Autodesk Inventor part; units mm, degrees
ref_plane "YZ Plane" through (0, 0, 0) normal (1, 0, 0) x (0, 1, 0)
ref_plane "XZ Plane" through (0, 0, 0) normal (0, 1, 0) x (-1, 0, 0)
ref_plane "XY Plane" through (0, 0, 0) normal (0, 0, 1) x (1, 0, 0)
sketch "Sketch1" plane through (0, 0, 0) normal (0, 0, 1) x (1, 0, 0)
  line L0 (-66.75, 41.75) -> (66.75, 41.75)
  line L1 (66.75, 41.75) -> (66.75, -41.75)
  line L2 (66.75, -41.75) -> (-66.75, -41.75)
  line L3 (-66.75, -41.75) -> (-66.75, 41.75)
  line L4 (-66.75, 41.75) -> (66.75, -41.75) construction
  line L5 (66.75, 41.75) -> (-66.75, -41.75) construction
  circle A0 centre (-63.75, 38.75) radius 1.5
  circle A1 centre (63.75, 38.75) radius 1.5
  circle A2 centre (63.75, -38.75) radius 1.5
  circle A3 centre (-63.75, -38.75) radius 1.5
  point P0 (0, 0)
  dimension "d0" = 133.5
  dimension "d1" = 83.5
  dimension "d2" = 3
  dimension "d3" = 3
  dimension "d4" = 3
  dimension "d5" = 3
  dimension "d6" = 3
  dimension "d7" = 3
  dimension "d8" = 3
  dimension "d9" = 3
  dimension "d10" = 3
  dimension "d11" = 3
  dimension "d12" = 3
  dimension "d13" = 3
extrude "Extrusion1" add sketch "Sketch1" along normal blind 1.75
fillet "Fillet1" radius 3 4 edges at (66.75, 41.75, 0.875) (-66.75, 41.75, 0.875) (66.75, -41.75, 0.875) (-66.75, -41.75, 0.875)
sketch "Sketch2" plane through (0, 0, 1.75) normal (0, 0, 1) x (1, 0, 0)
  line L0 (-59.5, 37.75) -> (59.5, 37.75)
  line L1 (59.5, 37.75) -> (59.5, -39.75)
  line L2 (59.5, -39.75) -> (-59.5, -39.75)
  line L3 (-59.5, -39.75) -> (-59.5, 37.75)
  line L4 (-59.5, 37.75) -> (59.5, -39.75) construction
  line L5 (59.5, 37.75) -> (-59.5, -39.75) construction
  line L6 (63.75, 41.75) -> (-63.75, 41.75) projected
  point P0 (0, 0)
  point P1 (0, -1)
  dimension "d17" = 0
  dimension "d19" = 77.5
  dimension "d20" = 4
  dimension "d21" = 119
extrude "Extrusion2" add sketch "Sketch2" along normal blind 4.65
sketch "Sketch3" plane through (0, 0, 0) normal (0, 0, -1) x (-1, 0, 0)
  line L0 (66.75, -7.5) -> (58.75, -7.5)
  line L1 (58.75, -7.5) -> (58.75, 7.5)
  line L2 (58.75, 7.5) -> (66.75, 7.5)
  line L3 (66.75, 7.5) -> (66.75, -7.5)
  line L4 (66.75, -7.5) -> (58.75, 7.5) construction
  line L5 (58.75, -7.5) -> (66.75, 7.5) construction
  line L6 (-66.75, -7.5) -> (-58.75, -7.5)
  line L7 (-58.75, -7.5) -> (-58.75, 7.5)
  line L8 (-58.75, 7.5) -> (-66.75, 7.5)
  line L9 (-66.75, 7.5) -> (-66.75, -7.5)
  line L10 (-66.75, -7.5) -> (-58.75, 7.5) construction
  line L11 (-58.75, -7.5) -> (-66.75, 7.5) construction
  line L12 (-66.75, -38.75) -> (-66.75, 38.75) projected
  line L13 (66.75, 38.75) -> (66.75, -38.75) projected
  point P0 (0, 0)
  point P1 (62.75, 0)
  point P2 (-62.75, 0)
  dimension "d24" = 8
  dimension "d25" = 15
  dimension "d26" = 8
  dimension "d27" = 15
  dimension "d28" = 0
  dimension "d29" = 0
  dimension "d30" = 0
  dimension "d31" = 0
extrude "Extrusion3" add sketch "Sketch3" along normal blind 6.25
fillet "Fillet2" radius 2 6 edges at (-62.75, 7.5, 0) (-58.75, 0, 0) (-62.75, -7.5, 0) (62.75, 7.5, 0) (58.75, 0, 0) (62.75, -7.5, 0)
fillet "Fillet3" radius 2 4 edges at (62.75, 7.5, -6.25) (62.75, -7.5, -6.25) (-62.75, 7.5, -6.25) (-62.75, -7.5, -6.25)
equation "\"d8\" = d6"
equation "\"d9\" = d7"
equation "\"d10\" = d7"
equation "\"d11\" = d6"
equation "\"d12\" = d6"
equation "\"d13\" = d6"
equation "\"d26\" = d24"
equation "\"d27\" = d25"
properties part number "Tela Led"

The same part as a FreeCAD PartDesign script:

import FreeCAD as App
import Part
import Sketcher
from FreeCAD import Vector
Q = App.Units.Quantity


def edges_at(feature, points):
    """Names of the edges that pass closest to the given points."""
    edges = feature.Shape.Edges
    near = lambda p: min(range(len(edges)), key=lambda i: edges[i].distToShape(Part.Vertex(*p))[0])
    return sorted({f"Edge{near(p) + 1}" for p in points})

doc = App.newDocument("Part")
body = doc.addObject("PartDesign::Body", "Body")

sketch1 = doc.addObject("Sketcher::SketchObject", "Sketch")
body.addObject(sketch1)
sketch1.AttachmentSupport = (doc.XY_Plane, [""])
sketch1.MapMode = "FlatFace"
sketch1.addGeometry(Part.LineSegment(Vector(66.75, 41.75, 0), Vector(-66.75, 41.75, 0)), False)
sketch1.addGeometry(Part.LineSegment(Vector(-66.75, 41.75, 0), Vector(-66.75, -41.75, 0)), False)
sketch1.addGeometry(Part.LineSegment(Vector(-66.75, -41.75, 0), Vector(66.75, -41.75, 0)), False)
sketch1.addGeometry(Part.LineSegment(Vector(66.75, -41.75, 0), Vector(66.75, 41.75, 0)), False)
sketch1.addGeometry(Part.Circle(Vector(-63.75, -38.75, 0), Vector(0, 0, 1), 1.5), False)
sketch1.addGeometry(Part.Circle(Vector(63.75, -38.75, 0), Vector(0, 0, 1), 1.5), False)
sketch1.addGeometry(Part.Circle(Vector(-63.75, 38.75, 0), Vector(0, 0, 1), 1.5), False)
sketch1.addGeometry(Part.Circle(Vector(63.75, 38.75, 0), Vector(0, 0, 1), 1.5), False)
sketch1.addConstraint(Sketcher.Constraint("Coincident", 0, 2, 1, 1))
sketch1.addConstraint(Sketcher.Constraint("Coincident", 1, 2, 2, 1))
sketch1.addConstraint(Sketcher.Constraint("Coincident", 2, 2, 3, 1))
sketch1.addConstraint(Sketcher.Constraint("Coincident", 3, 2, 0, 1))
sketch1.addConstraint(Sketcher.Constraint("Horizontal", 0))
sketch1.addConstraint(Sketcher.Constraint("Vertical", 1))
sketch1.addConstraint(Sketcher.Constraint("Horizontal", 2))
sketch1.addConstraint(Sketcher.Constraint("Vertical", 3))
sketch1.addConstraint(Sketcher.Constraint("Equal", 4, 5))
sketch1.addConstraint(Sketcher.Constraint("Equal", 5, 6))
sketch1.addConstraint(Sketcher.Constraint("Equal", 6, 7))
sketch1.addConstraint(Sketcher.Constraint("Symmetric", 5, 3, 6, 3, -1, 1))
sketch1.addConstraint(Sketcher.Constraint("Symmetric", 4, 3, 7, 3, -1, 1))
sketch1.addConstraint(Sketcher.Constraint("Symmetric", 0, 2, 2, 2, -1, 1))
sketch1.addConstraint(Sketcher.Constraint("Symmetric", 4, 3, 5, 3, -2))
sketch1.addConstraint(Sketcher.Constraint("Diameter", 4, Q("3 mm")))
sketch1.addConstraint(Sketcher.Constraint("DistanceX", 0, 2, 0, 1, Q("133.5 mm")))
sketch1.addConstraint(Sketcher.Constraint("DistanceY", 1, 2, 1, 1, Q("83.5 mm")))
sketch1.addConstraint(Sketcher.Constraint("DistanceX", 0, 2, 6, 3, Q("3 mm")))
sketch1.addConstraint(Sketcher.Constraint("DistanceY", 6, 3, 0, 2, Q("3 mm")))
pad1 = doc.addObject("PartDesign::Pad", "Pad")
body.addObject(pad1)
pad1.Profile = sketch1
pad1.Length = 1.75
doc.recompute()

fillet = doc.addObject("PartDesign::Fillet", "Fillet")
body.addObject(fillet)
fillet.Base = (pad1, edges_at(pad1, [
    (66.75, 41.75, 0.875),
    (-66.75, 41.75, 0.875),
    (66.75, -41.75, 0.875),
    (-66.75, -41.75, 0.875),
]))
fillet.Radius = 3

sketch2 = doc.addObject("Sketcher::SketchObject", "Sketch001")
body.addObject(sketch2)
sketch2.AttachmentSupport = (doc.XY_Plane, [""])
sketch2.MapMode = "FlatFace"
sketch2.AttachmentOffset = App.Placement(Vector(0, 0, 1.75), App.Rotation())
sketch2.addGeometry(Part.LineSegment(Vector(59.5, 37.75, 0), Vector(-59.5, 37.75, 0)), False)
sketch2.addGeometry(Part.LineSegment(Vector(-59.5, 37.75, 0), Vector(-59.5, -39.75, 0)), False)
sketch2.addGeometry(Part.LineSegment(Vector(-59.5, -39.75, 0), Vector(59.5, -39.75, 0)), False)
sketch2.addGeometry(Part.LineSegment(Vector(59.5, -39.75, 0), Vector(59.5, 37.75, 0)), False)
sketch2.addConstraint(Sketcher.Constraint("Coincident", 0, 2, 1, 1))
sketch2.addConstraint(Sketcher.Constraint("Coincident", 1, 2, 2, 1))
sketch2.addConstraint(Sketcher.Constraint("Coincident", 2, 2, 3, 1))
sketch2.addConstraint(Sketcher.Constraint("Coincident", 3, 2, 0, 1))
sketch2.addConstraint(Sketcher.Constraint("Horizontal", 0))
sketch2.addConstraint(Sketcher.Constraint("Vertical", 1))
sketch2.addConstraint(Sketcher.Constraint("Horizontal", 2))
sketch2.addConstraint(Sketcher.Constraint("Vertical", 3))
sketch2.addConstraint(Sketcher.Constraint("DistanceX", 0, 2, 0, 1, Q("119 mm")))
sketch2.addConstraint(Sketcher.Constraint("DistanceY", 1, 2, 1, 1, Q("77.5 mm")))
sketch2.addConstraint(Sketcher.Constraint("DistanceX", 0, 2, -1, 1, Q("59.5 mm")))
sketch2.addConstraint(Sketcher.Constraint("DistanceY", -1, 1, 0, 2, Q("37.75 mm")))
pad2 = doc.addObject("PartDesign::Pad", "Pad001")
body.addObject(pad2)
pad2.Profile = sketch2
pad2.Length = 4.65

sketch3 = doc.addObject("Sketcher::SketchObject", "Sketch002")
body.addObject(sketch3)
sketch3.AttachmentSupport = (doc.XY_Plane, [""])
sketch3.MapMode = "FlatFace"
sketch3.addGeometry(Part.LineSegment(Vector(-58.75, -7.5, 0), Vector(-66.75, -7.5, 0)), False)
sketch3.addGeometry(Part.LineSegment(Vector(-66.75, -7.5, 0), Vector(-66.75, 7.5, 0)), False)
sketch3.addGeometry(Part.LineSegment(Vector(-66.75, 7.5, 0), Vector(-58.75, 7.5, 0)), False)
sketch3.addGeometry(Part.LineSegment(Vector(-58.75, 7.5, 0), Vector(-58.75, -7.5, 0)), False)
sketch3.addGeometry(Part.LineSegment(Vector(66.75, 7.5, 0), Vector(66.75, -7.5, 0)), False)
sketch3.addGeometry(Part.LineSegment(Vector(66.75, -7.5, 0), Vector(58.75, -7.5, 0)), False)
sketch3.addGeometry(Part.LineSegment(Vector(58.75, -7.5, 0), Vector(58.75, 7.5, 0)), False)
sketch3.addGeometry(Part.LineSegment(Vector(58.75, 7.5, 0), Vector(66.75, 7.5, 0)), False)
sketch3.addConstraint(Sketcher.Constraint("Coincident", 0, 2, 1, 1))
sketch3.addConstraint(Sketcher.Constraint("Coincident", 1, 2, 2, 1))
sketch3.addConstraint(Sketcher.Constraint("Coincident", 2, 2, 3, 1))
sketch3.addConstraint(Sketcher.Constraint("Coincident", 3, 2, 0, 1))
sketch3.addConstraint(Sketcher.Constraint("Coincident", 4, 2, 5, 1))
sketch3.addConstraint(Sketcher.Constraint("Coincident", 5, 2, 6, 1))
sketch3.addConstraint(Sketcher.Constraint("Coincident", 6, 2, 7, 1))
sketch3.addConstraint(Sketcher.Constraint("Coincident", 7, 2, 4, 1))
sketch3.addConstraint(Sketcher.Constraint("Horizontal", 0))
sketch3.addConstraint(Sketcher.Constraint("Vertical", 1))
sketch3.addConstraint(Sketcher.Constraint("Horizontal", 2))
sketch3.addConstraint(Sketcher.Constraint("Vertical", 3))
sketch3.addConstraint(Sketcher.Constraint("Vertical", 4))
sketch3.addConstraint(Sketcher.Constraint("Horizontal", 5))
sketch3.addConstraint(Sketcher.Constraint("Vertical", 6))
sketch3.addConstraint(Sketcher.Constraint("Horizontal", 7))
sketch3.addConstraint(Sketcher.Constraint("Symmetric", 1, 2, 4, 2, -1, 1))
sketch3.addConstraint(Sketcher.Constraint("Symmetric", 3, 2, 6, 2, -1, 1))
sketch3.addConstraint(Sketcher.Constraint("Horizontal", 3, 2, 4, 2))
sketch3.addConstraint(Sketcher.Constraint("DistanceX", 0, 2, 0, 1, Q("8 mm")))
sketch3.addConstraint(Sketcher.Constraint("DistanceY", 1, 1, 1, 2, Q("15 mm")))
sketch3.addConstraint(Sketcher.Constraint("DistanceX", 3, 2, 4, 2, Q("125.5 mm")))
pad3 = doc.addObject("PartDesign::Pad", "Pad002")
body.addObject(pad3)
pad3.Profile = sketch3
pad3.Length = 6.25
pad3.Reversed = True
doc.recompute()

fillet2 = doc.addObject("PartDesign::Fillet", "Fillet001")
body.addObject(fillet2)
fillet2.Base = (pad3, edges_at(pad3, [
    (-62.75, 7.5, 0),
    (-58.75, 0, 0),
    (-62.75, -7.5, 0),
    (62.75, 7.5, 0),
    (58.75, 0, 0),
    (62.75, -7.5, 0),
]))
fillet2.Radius = 2
doc.recompute()

fillet3 = doc.addObject("PartDesign::Fillet", "Fillet002")
body.addObject(fillet3)
fillet3.Base = (fillet2, edges_at(fillet2, [
    (62.75, 7.5, -6.25),
    (62.75, -7.5, -6.25),
    (-62.75, 7.5, -6.25),
    (-62.75, -7.5, -6.25),
]))
fillet3.Radius = 2

doc.recompute()
